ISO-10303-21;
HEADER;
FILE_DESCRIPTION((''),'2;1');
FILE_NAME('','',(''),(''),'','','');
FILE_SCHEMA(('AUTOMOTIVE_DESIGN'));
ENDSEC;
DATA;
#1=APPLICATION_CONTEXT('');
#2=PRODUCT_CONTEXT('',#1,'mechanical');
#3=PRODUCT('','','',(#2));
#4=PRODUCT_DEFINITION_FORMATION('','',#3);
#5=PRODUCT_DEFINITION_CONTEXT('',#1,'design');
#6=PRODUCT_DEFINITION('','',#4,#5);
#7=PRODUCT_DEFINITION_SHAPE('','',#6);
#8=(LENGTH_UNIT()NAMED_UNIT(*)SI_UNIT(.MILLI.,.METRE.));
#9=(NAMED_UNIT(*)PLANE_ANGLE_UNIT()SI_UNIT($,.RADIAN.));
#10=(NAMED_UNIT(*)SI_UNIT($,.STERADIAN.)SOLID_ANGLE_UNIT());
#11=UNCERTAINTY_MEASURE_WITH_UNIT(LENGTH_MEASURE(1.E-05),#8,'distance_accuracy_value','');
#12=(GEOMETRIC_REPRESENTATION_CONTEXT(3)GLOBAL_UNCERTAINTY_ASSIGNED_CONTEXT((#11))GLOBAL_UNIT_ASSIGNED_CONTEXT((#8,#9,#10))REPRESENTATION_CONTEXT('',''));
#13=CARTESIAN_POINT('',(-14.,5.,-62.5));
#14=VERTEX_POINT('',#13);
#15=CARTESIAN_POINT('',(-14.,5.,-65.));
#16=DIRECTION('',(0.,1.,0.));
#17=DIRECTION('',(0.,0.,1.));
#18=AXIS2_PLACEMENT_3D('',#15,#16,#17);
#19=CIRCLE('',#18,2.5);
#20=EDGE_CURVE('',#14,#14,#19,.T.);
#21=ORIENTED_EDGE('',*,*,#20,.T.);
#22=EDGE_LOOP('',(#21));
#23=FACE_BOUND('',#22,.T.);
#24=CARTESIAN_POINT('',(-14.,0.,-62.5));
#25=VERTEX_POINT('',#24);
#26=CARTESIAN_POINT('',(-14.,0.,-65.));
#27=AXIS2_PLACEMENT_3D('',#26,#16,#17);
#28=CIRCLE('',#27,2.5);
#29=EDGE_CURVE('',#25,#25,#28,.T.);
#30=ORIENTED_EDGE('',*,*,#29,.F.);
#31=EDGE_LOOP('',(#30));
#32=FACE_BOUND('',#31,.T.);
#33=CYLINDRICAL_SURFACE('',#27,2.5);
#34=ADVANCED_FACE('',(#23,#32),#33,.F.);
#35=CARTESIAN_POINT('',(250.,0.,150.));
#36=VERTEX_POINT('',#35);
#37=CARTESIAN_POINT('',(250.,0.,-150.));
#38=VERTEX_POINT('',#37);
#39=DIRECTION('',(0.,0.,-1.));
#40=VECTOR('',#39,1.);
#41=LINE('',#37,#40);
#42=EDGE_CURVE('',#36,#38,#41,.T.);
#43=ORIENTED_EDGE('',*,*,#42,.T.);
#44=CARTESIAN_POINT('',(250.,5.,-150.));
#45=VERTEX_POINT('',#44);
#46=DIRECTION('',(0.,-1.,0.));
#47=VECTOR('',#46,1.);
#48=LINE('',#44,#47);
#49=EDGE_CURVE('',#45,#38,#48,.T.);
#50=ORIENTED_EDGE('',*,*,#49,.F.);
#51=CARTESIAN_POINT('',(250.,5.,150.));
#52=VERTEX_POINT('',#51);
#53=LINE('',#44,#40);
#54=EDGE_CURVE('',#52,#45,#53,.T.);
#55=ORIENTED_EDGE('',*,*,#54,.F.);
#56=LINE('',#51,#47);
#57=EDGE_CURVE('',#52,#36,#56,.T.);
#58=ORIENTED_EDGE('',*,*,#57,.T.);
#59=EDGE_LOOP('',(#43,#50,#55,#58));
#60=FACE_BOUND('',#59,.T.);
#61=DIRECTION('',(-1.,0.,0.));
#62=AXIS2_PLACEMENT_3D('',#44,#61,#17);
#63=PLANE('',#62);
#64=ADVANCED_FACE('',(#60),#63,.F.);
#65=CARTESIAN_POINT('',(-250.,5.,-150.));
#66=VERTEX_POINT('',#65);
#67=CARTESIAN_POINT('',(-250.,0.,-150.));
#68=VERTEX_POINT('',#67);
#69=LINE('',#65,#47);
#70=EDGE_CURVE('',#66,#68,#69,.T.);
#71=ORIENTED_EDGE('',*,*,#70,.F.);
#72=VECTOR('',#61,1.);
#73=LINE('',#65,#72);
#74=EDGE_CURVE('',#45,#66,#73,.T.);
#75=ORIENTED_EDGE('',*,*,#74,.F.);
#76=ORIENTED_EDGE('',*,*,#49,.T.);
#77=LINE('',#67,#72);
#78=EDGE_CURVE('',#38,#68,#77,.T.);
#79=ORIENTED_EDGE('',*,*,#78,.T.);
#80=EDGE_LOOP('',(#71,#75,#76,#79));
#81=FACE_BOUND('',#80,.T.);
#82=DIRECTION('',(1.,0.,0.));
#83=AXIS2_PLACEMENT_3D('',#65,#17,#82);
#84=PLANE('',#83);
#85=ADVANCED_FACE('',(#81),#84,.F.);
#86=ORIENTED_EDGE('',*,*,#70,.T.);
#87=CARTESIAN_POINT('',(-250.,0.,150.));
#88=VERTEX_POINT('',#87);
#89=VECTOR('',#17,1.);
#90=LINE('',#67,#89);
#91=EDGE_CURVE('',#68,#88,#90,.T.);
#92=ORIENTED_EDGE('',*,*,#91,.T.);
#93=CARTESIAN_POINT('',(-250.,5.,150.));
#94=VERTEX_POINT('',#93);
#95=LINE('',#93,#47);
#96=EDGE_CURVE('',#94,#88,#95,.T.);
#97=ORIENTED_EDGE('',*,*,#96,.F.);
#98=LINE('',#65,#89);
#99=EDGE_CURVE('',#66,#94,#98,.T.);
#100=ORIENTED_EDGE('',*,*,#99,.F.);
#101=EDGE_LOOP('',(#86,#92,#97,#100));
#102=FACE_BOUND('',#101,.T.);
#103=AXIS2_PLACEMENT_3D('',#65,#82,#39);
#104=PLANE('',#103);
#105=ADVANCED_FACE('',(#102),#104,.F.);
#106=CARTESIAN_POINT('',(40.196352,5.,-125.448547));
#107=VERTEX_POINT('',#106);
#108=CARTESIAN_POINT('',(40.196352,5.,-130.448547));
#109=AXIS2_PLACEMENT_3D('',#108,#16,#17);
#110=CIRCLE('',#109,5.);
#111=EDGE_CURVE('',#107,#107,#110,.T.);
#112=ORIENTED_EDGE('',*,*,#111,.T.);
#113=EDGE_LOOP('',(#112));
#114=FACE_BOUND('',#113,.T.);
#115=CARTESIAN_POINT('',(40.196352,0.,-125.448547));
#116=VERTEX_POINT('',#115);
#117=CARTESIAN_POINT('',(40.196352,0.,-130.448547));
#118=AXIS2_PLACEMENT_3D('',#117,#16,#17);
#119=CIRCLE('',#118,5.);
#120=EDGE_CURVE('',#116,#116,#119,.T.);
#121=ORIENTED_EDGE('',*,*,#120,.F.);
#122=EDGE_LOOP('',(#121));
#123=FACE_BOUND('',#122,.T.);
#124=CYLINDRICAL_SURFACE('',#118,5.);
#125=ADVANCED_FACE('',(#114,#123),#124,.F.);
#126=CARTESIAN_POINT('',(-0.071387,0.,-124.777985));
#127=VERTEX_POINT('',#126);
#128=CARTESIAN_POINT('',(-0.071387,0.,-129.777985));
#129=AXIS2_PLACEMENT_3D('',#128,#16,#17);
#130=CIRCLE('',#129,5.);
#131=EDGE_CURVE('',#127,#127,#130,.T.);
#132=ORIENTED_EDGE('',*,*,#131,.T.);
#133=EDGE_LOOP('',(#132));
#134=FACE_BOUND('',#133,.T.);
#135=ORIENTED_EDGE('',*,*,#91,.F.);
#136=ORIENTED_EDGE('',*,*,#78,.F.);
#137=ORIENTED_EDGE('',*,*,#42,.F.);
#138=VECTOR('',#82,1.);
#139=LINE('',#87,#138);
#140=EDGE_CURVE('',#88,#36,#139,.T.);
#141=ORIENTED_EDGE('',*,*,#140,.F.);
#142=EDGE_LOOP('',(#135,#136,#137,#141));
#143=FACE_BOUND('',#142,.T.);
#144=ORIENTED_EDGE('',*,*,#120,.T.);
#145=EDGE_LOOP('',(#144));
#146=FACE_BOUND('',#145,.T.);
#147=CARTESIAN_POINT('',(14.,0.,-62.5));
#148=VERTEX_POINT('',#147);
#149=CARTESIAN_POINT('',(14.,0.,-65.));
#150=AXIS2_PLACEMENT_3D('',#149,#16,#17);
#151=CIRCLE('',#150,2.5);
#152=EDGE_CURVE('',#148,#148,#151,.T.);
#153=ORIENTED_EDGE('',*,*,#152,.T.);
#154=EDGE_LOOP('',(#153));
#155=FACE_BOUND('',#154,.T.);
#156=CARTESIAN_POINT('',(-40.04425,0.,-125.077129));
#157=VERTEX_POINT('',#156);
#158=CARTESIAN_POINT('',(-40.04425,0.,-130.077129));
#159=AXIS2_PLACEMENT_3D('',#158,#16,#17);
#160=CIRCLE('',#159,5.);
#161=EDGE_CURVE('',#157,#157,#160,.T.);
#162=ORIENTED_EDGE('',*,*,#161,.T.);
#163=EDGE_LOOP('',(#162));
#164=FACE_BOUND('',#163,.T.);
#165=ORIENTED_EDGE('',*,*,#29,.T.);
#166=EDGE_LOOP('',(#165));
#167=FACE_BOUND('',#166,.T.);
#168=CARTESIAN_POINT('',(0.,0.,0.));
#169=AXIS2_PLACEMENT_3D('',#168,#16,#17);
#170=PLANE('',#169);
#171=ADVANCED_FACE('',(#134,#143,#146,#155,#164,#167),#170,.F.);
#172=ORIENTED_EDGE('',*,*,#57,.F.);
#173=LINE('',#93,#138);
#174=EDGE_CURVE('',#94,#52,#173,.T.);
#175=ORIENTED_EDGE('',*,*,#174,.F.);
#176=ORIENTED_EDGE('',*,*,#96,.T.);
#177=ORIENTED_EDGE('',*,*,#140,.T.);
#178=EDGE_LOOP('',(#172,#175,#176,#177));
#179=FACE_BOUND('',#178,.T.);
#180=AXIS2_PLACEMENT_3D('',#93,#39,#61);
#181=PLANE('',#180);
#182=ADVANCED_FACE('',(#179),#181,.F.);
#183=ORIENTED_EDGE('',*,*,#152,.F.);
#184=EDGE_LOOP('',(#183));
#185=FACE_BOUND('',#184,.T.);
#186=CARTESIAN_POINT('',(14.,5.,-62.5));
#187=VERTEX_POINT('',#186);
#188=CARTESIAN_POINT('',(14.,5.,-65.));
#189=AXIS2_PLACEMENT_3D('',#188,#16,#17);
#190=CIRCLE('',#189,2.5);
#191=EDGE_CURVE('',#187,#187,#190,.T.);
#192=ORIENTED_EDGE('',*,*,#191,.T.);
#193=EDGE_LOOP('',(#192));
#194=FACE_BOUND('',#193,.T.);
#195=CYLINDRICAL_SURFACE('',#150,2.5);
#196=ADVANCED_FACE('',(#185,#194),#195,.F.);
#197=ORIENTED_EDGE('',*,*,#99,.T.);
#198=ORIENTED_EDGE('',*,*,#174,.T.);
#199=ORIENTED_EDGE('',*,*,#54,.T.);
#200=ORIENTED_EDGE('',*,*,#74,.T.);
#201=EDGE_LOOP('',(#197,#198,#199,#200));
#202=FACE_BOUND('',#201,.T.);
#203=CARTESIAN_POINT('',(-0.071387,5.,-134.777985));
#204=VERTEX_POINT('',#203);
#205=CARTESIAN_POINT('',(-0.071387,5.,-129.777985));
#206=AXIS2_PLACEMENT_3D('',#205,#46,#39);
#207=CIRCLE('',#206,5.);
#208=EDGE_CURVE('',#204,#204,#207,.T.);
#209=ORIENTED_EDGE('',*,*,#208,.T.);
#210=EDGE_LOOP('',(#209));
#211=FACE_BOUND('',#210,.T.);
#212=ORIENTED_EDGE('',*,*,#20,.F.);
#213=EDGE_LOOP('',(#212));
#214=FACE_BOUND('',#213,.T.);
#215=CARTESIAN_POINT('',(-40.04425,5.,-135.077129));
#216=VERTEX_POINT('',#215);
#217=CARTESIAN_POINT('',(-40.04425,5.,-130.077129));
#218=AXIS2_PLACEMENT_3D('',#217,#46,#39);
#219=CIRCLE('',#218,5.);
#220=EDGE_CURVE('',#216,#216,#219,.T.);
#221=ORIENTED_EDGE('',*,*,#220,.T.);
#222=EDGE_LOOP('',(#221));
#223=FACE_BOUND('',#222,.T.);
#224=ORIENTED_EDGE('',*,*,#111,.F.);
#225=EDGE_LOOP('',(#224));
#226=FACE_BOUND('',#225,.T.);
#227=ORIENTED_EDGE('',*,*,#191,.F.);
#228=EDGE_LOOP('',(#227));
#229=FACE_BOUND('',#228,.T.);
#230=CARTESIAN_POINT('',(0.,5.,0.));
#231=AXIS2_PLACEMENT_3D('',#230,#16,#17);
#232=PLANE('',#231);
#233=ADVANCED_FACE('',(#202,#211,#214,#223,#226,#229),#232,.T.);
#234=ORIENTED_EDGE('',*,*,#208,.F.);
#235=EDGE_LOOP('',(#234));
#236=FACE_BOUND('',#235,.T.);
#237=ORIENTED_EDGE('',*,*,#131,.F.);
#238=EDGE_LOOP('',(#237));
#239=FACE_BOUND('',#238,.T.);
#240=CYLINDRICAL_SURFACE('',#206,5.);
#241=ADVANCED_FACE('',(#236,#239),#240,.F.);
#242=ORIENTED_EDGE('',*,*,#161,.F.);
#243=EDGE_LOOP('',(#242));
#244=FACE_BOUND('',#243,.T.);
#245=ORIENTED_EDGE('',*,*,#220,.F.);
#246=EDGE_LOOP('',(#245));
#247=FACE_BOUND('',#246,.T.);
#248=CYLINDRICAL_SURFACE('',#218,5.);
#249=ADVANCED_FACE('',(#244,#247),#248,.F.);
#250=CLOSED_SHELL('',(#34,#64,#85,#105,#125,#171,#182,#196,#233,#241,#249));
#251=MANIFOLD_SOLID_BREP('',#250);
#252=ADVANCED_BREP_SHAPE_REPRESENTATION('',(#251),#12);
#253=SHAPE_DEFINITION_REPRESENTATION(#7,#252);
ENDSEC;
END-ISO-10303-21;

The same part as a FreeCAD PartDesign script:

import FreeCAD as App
import Part
import Sketcher
from FreeCAD import Vector


def add_polygon(sketch, points):
    """Adds a closed chain of lines whose ends are joined by coincident constraints."""
    first, n = sketch.GeometryCount, len(points)
    for a, b in zip(points, points[1:] + points[:1]):
        sketch.addGeometry(Part.LineSegment(App.Vector(*a, 0), App.Vector(*b, 0)), False)
    for i in range(n):
        sketch.addConstraint(Sketcher.Constraint("Coincident", first + i, 2, first + (i + 1) % n, 1))

doc = App.newDocument("Part")
params = doc.addObject("Spreadsheet::Sheet", "Params")
for row, (alias, value) in enumerate([
    ("sketch1_width", "500 mm"),
    ("sketch1_height", "300 mm"),
    ("pad1_length", "5 mm"),
    ("sketch2_diameter", "10 mm"),
    ("sketch3_diameter", "10 mm"),
    ("sketch4_diameter", "5 mm"),
], start=1):
    params.set(f"A{row}", alias)
    params.set(f"B{row}", "=" + value)
    params.setAlias(f"B{row}", alias)

body = doc.addObject("PartDesign::Body", "Body")

sketch1 = doc.addObject("Sketcher::SketchObject", "Sketch")
body.addObject(sketch1)
sketch1.AttachmentSupport = (doc.XZ_Plane, [""])
sketch1.MapMode = "FlatFace"
add_polygon(sketch1, [(-250, -150), (-250, 150), (250, 150), (250, -150)])
sketch1.addConstraint([
    Sketcher.Constraint("Vertical", 0),
    Sketcher.Constraint("Horizontal", 1),
    Sketcher.Constraint("Vertical", 2),
    Sketcher.Constraint("Horizontal", 3),
    Sketcher.Constraint("Symmetric", 0, 2, 2, 2, -1, 1),
    Sketcher.Constraint("DistanceX", 1, 1, 1, 2, 500.0),
    Sketcher.Constraint("DistanceY", 0, 1, 0, 2, 300.0),
])
sketch1.setExpression("Constraints[9]", "Params.sketch1_width")
sketch1.setExpression("Constraints[10]", "Params.sketch1_height")
pad1 = doc.addObject("PartDesign::Pad", "Pad")
body.addObject(pad1)
pad1.Profile = sketch1
pad1.setExpression("Length", "Params.pad1_length")
pad1.Reversed = True

sketch2 = doc.addObject("Sketcher::SketchObject", "Sketch001")
body.addObject(sketch2)
sketch2.AttachmentSupport = (doc.XZ_Plane, [""])
sketch2.MapMode = "FlatFace"
sketch2.addGeometry([
    Part.Circle(Vector(-40, -130, 0), Vector(0, 0, 1), 5),
    Part.Circle(Vector(0, -130, 0), Vector(0, 0, 1), 5),
], False)
sketch2.addConstraint([
    Sketcher.Constraint("Equal", 0, 1),
    Sketcher.Constraint("Diameter", 0, 10.0),
    Sketcher.Constraint("DistanceX", 0, 3, -1, 1, 40.04425),
    Sketcher.Constraint("DistanceY", 0, 3, -1, 1, 130.077129),
    Sketcher.Constraint("DistanceX", 1, 3, -1, 1, 0.071387),
    Sketcher.Constraint("DistanceY", 1, 3, -1, 1, 129.777985),
])
sketch2.setExpression("Constraints[1]", "Params.sketch2_diameter")
pocket1 = doc.addObject("PartDesign::Pocket", "Pocket")
body.addObject(pocket1)
pocket1.Profile = sketch2
pocket1.Type = "ThroughAll"
pocket1.Midplane = True

sketch3 = doc.addObject("Sketcher::SketchObject", "Sketch002")
body.addObject(sketch3)
sketch3.AttachmentSupport = (doc.XZ_Plane, [""])
sketch3.MapMode = "FlatFace"
sketch3.AttachmentOffset = App.Placement(Vector(0, 0, -5), App.Rotation())
sketch3.addGeometry(Part.Circle(Vector(40, -130, 0), Vector(0, 0, 1), 5), False)
sketch3.addConstraint([
    Sketcher.Constraint("Diameter", 0, 10.0),
    Sketcher.Constraint("DistanceX", -1, 1, 0, 3, 40.196352),
    Sketcher.Constraint("DistanceY", 0, 3, -1, 1, 130.448547),
])
sketch3.setExpression("Constraints[0]", "Params.sketch3_diameter")
pocket2 = doc.addObject("PartDesign::Pocket", "Pocket001")
body.addObject(pocket2)
pocket2.Profile = sketch3
pocket2.Type = "ThroughAll"
pocket2.Midplane = True

sketch4 = doc.addObject("Sketcher::SketchObject", "Sketch003")
body.addObject(sketch4)
sketch4.AttachmentSupport = (doc.XZ_Plane, [""])
sketch4.MapMode = "FlatFace"
sketch4.AttachmentOffset = App.Placement(Vector(0, 0, -5), App.Rotation())
sketch4.addGeometry([
    Part.Circle(Vector(14, -65, 0), Vector(0, 0, 1), 2.5),
    Part.Circle(Vector(-14, -65, 0), Vector(0, 0, 1), 2.5),
], False)
sketch4.addConstraint([
    Sketcher.Constraint("Equal", 0, 1),
    Sketcher.Constraint("Symmetric", 0, 3, 1, 3, -2),
    Sketcher.Constraint("Diameter", 0, 5.0),
    Sketcher.Constraint("DistanceX", -1, 1, 0, 3, 14.0),
    Sketcher.Constraint("DistanceY", 0, 3, -1, 1, 65.0),
])
sketch4.setExpression("Constraints[2]", "Params.sketch4_diameter")
pocket3 = doc.addObject("PartDesign::Pocket", "Pocket002")
body.addObject(pocket3)
pocket3.Profile = sketch4
pocket3.Type = "ThroughAll"
pocket3.Reversed = True

doc.recompute()
